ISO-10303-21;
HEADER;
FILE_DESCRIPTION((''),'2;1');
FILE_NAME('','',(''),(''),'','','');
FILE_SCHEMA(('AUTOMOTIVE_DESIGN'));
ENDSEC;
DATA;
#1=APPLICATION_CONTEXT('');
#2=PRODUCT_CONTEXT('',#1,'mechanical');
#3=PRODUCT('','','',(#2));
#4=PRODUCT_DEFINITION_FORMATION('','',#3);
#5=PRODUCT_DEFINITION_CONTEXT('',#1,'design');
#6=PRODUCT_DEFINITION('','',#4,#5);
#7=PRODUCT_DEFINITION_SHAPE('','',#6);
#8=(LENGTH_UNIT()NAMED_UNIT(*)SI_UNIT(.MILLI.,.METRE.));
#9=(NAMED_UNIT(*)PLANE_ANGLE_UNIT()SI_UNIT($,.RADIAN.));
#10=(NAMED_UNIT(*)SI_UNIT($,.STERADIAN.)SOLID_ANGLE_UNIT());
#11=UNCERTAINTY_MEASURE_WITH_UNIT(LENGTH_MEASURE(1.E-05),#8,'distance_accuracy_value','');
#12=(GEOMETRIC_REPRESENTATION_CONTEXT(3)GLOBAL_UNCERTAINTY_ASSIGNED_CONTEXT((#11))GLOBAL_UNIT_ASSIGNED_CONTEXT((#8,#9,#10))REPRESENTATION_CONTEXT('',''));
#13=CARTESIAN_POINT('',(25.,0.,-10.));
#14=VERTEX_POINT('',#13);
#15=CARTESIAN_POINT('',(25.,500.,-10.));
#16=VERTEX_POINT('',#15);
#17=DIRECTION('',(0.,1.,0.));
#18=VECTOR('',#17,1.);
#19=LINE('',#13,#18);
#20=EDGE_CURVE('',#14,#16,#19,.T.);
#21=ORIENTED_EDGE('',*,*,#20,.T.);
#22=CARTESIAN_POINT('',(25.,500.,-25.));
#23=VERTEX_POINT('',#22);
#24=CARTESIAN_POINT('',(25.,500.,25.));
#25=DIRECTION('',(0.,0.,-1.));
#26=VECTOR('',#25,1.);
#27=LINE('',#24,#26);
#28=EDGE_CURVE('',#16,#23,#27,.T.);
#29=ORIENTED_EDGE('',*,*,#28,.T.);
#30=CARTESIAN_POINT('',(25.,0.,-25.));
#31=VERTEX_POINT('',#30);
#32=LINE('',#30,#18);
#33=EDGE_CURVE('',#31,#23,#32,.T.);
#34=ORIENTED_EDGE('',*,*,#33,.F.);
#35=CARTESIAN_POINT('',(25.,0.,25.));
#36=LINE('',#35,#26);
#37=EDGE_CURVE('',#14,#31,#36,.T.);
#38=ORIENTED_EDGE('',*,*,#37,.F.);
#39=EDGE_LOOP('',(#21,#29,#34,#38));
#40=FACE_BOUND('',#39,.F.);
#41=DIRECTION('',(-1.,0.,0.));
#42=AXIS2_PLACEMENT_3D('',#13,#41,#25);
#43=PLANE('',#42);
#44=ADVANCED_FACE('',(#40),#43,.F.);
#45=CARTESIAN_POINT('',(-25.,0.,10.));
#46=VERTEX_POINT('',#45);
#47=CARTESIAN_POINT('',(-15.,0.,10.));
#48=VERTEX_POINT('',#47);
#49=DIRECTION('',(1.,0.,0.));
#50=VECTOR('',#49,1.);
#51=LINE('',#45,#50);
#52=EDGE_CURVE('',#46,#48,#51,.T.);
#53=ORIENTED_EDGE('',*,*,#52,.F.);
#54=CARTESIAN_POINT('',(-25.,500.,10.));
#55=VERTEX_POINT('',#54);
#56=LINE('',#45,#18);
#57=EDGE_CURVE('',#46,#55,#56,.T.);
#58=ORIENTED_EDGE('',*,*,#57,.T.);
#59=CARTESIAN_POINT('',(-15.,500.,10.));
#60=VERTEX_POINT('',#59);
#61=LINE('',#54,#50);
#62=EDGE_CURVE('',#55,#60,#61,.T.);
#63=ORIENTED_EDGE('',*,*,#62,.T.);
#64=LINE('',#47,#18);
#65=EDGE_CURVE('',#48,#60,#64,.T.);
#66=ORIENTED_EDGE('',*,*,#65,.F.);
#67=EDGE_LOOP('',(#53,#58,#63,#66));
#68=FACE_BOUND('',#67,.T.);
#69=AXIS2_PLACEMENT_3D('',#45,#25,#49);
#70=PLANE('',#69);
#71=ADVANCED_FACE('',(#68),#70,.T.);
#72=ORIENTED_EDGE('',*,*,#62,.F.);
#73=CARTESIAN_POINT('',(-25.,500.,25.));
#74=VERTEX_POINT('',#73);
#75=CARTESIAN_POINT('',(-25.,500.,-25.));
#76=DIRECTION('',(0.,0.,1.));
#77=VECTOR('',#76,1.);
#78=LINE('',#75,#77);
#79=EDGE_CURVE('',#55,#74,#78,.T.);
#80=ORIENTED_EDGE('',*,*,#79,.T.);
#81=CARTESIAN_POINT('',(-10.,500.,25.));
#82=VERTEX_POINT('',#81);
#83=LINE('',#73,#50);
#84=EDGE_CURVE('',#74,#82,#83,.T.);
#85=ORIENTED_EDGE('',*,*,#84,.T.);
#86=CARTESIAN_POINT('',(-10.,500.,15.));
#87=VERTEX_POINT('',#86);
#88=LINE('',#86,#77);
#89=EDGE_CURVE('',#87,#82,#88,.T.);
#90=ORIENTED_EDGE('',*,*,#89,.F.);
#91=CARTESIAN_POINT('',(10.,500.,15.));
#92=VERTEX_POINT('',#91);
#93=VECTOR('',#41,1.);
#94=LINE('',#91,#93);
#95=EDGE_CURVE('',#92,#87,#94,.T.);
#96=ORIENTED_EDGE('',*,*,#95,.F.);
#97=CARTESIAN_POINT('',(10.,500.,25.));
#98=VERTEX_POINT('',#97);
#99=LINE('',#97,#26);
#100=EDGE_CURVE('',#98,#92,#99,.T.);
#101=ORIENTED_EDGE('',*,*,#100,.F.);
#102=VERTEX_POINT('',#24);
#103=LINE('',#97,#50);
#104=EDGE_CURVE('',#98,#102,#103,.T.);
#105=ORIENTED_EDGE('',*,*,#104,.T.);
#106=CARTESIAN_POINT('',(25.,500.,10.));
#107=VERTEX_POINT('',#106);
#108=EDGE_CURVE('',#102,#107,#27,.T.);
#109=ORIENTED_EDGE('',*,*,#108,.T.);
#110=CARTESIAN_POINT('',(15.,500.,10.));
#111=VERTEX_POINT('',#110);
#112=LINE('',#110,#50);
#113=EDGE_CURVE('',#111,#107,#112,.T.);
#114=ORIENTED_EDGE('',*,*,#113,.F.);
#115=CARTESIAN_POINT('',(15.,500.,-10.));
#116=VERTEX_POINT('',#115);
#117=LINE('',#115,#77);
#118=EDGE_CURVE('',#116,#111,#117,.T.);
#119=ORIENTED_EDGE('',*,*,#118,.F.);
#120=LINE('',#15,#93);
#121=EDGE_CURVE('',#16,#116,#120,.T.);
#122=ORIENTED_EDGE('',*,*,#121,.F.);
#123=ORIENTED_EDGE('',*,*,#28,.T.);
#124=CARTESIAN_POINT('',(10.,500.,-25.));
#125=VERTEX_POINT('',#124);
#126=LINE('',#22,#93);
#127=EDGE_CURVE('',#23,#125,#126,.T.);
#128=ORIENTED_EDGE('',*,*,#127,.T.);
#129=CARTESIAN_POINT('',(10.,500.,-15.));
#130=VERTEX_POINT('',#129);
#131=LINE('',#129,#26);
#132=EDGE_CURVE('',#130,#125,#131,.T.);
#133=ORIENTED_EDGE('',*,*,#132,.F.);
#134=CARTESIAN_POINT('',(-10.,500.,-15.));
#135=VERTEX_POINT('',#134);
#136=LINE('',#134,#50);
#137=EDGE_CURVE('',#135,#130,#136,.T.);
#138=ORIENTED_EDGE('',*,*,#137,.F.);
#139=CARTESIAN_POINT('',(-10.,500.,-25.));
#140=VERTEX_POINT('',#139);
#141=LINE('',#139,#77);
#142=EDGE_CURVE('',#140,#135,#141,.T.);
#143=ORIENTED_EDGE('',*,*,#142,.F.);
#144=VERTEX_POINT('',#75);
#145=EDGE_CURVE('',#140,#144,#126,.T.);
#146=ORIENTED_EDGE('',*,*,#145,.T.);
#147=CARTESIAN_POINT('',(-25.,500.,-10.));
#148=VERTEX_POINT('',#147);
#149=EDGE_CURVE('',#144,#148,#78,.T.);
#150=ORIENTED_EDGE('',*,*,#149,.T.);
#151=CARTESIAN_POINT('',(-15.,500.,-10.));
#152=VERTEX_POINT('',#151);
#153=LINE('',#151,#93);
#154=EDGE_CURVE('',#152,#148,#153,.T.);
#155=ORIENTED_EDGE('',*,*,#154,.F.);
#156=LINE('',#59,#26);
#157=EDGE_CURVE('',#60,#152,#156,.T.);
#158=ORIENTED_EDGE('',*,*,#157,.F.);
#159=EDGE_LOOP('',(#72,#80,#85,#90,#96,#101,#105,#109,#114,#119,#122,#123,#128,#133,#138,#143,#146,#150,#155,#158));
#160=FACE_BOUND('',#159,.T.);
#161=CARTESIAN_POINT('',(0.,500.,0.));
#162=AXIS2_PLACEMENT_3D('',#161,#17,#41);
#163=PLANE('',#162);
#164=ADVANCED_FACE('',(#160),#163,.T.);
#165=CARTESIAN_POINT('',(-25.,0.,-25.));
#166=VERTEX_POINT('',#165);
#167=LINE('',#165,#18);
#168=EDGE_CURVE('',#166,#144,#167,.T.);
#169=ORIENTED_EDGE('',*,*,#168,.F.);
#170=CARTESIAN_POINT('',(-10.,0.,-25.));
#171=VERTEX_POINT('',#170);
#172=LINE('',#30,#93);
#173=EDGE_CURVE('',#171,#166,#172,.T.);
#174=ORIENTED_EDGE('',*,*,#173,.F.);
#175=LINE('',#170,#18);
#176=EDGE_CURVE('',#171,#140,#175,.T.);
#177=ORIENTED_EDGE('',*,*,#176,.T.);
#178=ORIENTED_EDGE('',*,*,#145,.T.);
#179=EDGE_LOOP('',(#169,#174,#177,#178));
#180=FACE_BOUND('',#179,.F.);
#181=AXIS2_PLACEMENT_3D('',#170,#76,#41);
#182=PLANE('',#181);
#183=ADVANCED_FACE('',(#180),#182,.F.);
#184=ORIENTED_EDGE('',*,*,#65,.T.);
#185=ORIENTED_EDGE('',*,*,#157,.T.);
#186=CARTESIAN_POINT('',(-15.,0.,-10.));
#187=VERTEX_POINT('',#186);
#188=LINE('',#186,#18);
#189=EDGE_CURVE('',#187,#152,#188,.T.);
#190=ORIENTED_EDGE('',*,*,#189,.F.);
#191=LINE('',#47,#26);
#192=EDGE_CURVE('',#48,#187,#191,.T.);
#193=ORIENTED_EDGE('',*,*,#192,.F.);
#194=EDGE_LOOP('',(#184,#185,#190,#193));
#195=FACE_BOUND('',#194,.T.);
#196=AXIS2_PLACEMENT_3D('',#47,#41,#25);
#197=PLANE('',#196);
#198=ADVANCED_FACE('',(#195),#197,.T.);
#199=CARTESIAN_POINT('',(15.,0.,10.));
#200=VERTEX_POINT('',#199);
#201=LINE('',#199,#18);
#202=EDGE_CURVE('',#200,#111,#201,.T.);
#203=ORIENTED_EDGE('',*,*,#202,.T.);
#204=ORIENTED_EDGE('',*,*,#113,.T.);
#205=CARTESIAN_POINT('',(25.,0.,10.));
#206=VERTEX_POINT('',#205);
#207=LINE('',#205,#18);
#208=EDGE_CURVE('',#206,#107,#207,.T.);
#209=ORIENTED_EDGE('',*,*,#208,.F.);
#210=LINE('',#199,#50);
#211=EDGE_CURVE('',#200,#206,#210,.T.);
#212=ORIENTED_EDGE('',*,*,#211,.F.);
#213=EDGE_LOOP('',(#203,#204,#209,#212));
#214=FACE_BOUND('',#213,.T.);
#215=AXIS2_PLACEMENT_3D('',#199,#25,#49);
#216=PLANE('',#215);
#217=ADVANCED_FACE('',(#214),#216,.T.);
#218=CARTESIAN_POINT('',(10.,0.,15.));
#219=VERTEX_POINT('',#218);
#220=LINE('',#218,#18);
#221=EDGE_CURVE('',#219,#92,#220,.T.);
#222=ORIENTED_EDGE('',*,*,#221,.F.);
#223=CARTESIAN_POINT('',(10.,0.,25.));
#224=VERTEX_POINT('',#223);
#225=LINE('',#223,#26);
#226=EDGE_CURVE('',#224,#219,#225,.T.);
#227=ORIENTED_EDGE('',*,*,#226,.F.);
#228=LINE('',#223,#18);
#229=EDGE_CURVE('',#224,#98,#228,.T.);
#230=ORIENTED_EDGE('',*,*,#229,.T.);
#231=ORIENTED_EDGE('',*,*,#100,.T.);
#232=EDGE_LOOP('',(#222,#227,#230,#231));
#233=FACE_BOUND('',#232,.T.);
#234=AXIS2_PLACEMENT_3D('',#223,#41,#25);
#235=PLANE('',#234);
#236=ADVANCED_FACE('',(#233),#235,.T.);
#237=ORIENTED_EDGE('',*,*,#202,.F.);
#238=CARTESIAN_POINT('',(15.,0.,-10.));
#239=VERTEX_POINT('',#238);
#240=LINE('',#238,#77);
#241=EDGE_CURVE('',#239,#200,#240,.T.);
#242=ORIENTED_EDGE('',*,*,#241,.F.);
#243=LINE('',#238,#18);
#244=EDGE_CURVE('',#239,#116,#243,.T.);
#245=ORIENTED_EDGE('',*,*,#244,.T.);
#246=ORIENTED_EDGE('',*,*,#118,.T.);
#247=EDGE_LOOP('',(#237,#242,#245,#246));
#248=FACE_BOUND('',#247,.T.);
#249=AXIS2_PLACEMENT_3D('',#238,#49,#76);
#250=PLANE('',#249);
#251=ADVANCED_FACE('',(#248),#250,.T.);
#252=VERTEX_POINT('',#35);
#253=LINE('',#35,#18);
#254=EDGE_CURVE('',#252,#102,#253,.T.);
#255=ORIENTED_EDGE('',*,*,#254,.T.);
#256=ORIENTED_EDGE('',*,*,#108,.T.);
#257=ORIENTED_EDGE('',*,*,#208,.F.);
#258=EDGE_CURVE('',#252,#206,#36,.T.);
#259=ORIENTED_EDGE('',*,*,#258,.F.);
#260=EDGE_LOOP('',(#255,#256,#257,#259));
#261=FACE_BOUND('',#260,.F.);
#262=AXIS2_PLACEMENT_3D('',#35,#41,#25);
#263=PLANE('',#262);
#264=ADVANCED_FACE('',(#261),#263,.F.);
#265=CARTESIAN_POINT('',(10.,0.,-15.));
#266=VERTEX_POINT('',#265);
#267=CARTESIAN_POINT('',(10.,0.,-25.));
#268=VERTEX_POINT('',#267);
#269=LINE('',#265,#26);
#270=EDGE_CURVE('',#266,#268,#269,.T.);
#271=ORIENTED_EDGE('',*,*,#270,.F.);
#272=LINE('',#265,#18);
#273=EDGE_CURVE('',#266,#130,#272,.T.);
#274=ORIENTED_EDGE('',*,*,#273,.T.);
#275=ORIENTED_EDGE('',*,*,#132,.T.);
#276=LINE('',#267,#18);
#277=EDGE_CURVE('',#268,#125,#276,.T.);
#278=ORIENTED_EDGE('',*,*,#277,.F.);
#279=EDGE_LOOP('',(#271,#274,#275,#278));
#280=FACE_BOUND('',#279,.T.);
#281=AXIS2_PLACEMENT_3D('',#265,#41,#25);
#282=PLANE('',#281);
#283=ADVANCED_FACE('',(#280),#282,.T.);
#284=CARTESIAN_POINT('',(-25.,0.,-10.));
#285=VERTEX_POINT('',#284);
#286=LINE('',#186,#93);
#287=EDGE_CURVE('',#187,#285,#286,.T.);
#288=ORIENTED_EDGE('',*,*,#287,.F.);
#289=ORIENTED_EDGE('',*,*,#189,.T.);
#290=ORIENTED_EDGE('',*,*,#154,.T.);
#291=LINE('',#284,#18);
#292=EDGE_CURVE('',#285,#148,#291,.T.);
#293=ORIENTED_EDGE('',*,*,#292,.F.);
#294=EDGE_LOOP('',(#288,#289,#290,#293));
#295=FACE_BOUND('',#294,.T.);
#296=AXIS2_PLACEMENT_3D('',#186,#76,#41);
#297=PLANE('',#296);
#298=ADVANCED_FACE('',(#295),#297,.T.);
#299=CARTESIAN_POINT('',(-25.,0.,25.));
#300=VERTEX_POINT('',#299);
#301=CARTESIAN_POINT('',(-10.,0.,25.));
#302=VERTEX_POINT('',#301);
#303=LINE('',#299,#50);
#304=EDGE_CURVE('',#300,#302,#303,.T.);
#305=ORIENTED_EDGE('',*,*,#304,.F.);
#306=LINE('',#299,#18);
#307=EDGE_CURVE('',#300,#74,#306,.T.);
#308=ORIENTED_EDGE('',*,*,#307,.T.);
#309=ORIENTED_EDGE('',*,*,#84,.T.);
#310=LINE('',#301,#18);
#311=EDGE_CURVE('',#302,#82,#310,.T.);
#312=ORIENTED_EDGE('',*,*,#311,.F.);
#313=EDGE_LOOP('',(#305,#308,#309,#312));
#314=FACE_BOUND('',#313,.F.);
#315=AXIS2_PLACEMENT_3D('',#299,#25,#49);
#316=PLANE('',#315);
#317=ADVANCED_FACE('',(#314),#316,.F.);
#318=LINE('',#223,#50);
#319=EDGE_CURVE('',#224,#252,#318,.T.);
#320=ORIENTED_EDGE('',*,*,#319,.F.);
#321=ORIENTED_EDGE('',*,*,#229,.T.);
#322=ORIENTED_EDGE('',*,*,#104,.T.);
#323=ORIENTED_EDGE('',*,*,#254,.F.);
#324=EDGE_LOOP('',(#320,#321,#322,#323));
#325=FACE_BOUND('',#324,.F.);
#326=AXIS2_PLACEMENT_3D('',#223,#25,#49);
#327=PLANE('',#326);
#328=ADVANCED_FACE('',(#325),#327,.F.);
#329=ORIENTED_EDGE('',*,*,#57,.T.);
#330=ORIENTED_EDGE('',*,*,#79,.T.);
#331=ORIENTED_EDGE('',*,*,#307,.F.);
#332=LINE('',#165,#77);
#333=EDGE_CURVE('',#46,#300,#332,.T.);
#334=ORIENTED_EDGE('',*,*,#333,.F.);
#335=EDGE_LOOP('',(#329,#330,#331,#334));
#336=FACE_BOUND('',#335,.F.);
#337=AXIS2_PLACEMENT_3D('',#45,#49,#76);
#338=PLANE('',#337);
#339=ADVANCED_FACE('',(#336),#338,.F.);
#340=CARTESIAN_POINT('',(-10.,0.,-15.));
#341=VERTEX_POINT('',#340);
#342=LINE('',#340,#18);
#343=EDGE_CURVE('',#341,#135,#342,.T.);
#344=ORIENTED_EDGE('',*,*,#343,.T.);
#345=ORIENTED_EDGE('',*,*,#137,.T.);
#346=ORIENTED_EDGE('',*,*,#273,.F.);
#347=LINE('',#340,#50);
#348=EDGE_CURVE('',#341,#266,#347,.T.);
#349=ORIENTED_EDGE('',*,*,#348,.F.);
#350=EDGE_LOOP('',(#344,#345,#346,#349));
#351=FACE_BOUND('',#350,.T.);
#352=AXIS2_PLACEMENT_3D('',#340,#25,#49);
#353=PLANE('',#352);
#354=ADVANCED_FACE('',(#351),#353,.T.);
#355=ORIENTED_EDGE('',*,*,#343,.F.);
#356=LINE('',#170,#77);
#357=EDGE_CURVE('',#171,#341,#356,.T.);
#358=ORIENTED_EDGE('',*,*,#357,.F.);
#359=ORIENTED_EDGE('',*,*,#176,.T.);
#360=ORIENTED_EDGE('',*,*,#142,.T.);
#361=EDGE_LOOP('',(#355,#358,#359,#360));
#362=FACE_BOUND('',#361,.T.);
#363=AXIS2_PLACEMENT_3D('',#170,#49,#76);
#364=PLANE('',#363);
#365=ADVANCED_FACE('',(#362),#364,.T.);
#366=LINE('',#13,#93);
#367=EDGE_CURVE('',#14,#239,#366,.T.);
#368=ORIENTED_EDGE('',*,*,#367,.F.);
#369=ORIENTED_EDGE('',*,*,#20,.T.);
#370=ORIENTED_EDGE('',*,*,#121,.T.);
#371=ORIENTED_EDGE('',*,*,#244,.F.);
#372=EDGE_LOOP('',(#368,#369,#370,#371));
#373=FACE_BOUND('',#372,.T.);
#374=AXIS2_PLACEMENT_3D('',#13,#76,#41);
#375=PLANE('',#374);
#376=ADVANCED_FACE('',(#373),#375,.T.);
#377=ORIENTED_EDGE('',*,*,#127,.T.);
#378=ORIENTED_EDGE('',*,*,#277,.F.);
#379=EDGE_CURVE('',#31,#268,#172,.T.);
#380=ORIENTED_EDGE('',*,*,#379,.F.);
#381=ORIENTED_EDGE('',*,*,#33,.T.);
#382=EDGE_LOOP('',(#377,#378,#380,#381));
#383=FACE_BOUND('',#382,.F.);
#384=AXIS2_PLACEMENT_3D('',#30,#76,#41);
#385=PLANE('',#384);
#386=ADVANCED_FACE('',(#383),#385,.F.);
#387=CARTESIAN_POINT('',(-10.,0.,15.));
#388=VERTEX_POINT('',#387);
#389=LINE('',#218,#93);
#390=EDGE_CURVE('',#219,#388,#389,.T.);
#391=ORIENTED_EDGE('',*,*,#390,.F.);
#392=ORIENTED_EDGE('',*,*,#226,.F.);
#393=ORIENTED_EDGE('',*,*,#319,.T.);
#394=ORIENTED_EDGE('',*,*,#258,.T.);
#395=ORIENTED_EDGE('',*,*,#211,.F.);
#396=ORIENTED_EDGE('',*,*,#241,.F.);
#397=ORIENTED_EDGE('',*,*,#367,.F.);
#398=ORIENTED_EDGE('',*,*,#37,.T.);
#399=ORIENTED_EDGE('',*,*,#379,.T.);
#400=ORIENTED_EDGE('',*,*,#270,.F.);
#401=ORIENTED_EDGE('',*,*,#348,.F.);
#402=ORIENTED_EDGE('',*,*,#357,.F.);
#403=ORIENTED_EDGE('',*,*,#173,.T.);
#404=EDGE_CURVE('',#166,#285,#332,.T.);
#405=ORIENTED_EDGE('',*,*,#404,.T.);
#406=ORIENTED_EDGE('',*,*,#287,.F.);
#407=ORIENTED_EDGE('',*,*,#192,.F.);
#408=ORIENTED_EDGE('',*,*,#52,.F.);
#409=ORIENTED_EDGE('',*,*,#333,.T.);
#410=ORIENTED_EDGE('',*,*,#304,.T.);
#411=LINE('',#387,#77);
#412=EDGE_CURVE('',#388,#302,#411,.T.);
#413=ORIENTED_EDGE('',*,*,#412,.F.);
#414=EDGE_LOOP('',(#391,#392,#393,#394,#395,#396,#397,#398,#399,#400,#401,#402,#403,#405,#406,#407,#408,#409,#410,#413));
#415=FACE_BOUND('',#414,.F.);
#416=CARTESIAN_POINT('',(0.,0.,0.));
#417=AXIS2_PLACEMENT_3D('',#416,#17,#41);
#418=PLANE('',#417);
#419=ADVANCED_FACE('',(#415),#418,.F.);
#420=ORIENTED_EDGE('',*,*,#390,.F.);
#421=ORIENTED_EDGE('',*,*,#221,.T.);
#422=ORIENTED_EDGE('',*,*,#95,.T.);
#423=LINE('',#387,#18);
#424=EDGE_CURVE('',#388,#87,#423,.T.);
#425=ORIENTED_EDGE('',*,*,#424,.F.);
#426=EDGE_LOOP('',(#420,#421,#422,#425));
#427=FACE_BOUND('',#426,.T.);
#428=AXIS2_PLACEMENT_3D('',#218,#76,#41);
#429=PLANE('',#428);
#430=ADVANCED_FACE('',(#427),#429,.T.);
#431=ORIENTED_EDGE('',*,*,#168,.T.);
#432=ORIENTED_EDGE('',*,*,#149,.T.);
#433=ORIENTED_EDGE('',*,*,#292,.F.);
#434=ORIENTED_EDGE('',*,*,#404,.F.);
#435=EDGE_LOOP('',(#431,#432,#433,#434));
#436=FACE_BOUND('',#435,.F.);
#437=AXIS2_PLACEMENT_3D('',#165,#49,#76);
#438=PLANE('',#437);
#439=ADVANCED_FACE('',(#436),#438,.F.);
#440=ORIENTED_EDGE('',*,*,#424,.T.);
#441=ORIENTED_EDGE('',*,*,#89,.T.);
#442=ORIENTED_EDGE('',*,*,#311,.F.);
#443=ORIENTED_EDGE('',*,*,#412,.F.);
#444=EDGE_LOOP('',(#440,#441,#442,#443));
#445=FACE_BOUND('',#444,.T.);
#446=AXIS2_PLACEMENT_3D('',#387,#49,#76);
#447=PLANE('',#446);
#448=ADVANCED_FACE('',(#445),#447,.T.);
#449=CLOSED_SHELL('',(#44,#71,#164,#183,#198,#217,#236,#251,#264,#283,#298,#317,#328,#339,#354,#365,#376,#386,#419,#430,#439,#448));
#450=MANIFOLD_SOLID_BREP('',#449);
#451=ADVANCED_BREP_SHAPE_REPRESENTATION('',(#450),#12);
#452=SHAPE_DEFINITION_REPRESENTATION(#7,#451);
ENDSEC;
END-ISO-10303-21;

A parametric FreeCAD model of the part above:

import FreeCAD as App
import Part
import Sketcher
Q = App.Units.Quantity

doc = App.newDocument("Part")
body = doc.addObject("PartDesign::Body", "Body")

# Sketch on XZ plane
sketch1 = body.newObject("Sketcher::SketchObject", "Sketch")
sketch1.AttachmentSupport = (doc.getObject("XZ_Plane"), [""])
sketch1.MapMode = "FlatFace"
sketch1.addGeometry([
    Part.LineSegment(App.Vector(25, -10, 0), App.Vector(25, -25, 0)),  # 0
    Part.LineSegment(App.Vector(25, -25, 0), App.Vector(10, -25, 0)),  # 1
    Part.LineSegment(App.Vector(10, -25, 0), App.Vector(10, -15, 0)),  # 2
    Part.LineSegment(App.Vector(10, -15, 0), App.Vector(-10, -15, 0)),  # 3
    Part.LineSegment(App.Vector(-10, -15, 0), App.Vector(-10, -25, 0)),  # 4
    Part.LineSegment(App.Vector(-10, -25, 0), App.Vector(-25, -25, 0)),  # 5
    Part.LineSegment(App.Vector(-25, -25, 0), App.Vector(-25, -10, 0)),  # 6
    Part.LineSegment(App.Vector(-25, -10, 0), App.Vector(-15, -10, 0)),  # 7
    Part.LineSegment(App.Vector(-15, -10, 0), App.Vector(-15, 10, 0)),  # 8
    Part.LineSegment(App.Vector(-15, 10, 0), App.Vector(-25, 10, 0)),  # 9
    Part.LineSegment(App.Vector(-25, 10, 0), App.Vector(-25, 25, 0)),  # 10
    Part.LineSegment(App.Vector(-25, 25, 0), App.Vector(-10, 25, 0)),  # 11
    Part.LineSegment(App.Vector(-10, 25, 0), App.Vector(-10, 15, 0)),  # 12
    Part.LineSegment(App.Vector(-10, 15, 0), App.Vector(10, 15, 0)),  # 13
    Part.LineSegment(App.Vector(10, 15, 0), App.Vector(10, 25, 0)),  # 14
    Part.LineSegment(App.Vector(10, 25, 0), App.Vector(25, 25, 0)),  # 15
    Part.LineSegment(App.Vector(25, 25, 0), App.Vector(25, 10, 0)),  # 16
    Part.LineSegment(App.Vector(25, 10, 0), App.Vector(15, 10, 0)),  # 17
    Part.LineSegment(App.Vector(15, 10, 0), App.Vector(15, -10, 0)),  # 18
    Part.LineSegment(App.Vector(15, -10, 0), App.Vector(25, -10, 0)),  # 19
], False)
sketch1.addConstraint([
    Sketcher.Constraint("Coincident", 0, 2, 1, 1),
    Sketcher.Constraint("Coincident", 1, 2, 2, 1),
    Sketcher.Constraint("Coincident", 2, 2, 3, 1),
    Sketcher.Constraint("Coincident", 3, 2, 4, 1),
    Sketcher.Constraint("Coincident", 4, 2, 5, 1),
    Sketcher.Constraint("Coincident", 5, 2, 6, 1),
    Sketcher.Constraint("Coincident", 6, 2, 7, 1),
    Sketcher.Constraint("Coincident", 7, 2, 8, 1),
    Sketcher.Constraint("Coincident", 8, 2, 9, 1),
    Sketcher.Constraint("Coincident", 9, 2, 10, 1),
    Sketcher.Constraint("Coincident", 10, 2, 11, 1),
    Sketcher.Constraint("Coincident", 11, 2, 12, 1),
    Sketcher.Constraint("Coincident", 12, 2, 13, 1),
    Sketcher.Constraint("Coincident", 13, 2, 14, 1),
    Sketcher.Constraint("Coincident", 14, 2, 15, 1),
    Sketcher.Constraint("Coincident", 15, 2, 16, 1),
    Sketcher.Constraint("Coincident", 16, 2, 17, 1),
    Sketcher.Constraint("Coincident", 17, 2, 18, 1),
    Sketcher.Constraint("Coincident", 18, 2, 19, 1),
    Sketcher.Constraint("Coincident", 19, 2, 0, 1),
    Sketcher.Constraint("Vertical", 0),
    Sketcher.Constraint("Horizontal", 1),
    Sketcher.Constraint("Vertical", 2),
    Sketcher.Constraint("Horizontal", 3),
    Sketcher.Constraint("Vertical", 4),
    Sketcher.Constraint("Horizontal", 5),
    Sketcher.Constraint("Vertical", 6),
    Sketcher.Constraint("Horizontal", 7),
    Sketcher.Constraint("Vertical", 8),
    Sketcher.Constraint("Horizontal", 9),
    Sketcher.Constraint("Vertical", 10),
    Sketcher.Constraint("Horizontal", 11),
    Sketcher.Constraint("Vertical", 12),
    Sketcher.Constraint("Horizontal", 13),
    Sketcher.Constraint("Vertical", 14),
    Sketcher.Constraint("Horizontal", 15),
    Sketcher.Constraint("Vertical", 16),
    Sketcher.Constraint("Horizontal", 17),
    Sketcher.Constraint("Vertical", 18),
    Sketcher.Constraint("Horizontal", 19),
    Sketcher.Constraint("Symmetric", 0, 2, 10, 2, -1, 1),
    Sketcher.Constraint("Symmetric", 2, 2, 12, 2, -1, 1),
    Sketcher.Constraint("Symmetric", 4, 2, 14, 2, -1, 1),
    Sketcher.Constraint("Symmetric", 6, 2, 16, 2, -1, 1),
    Sketcher.Constraint("Symmetric", 8, 2, 18, 2, -1, 1),
    Sketcher.Constraint("Symmetric", 1, 2, 4, 2, -2),
    Sketcher.Constraint("Symmetric", 9, 2, 16, 2, -2),
    Sketcher.Constraint("Equal", 15, 0),
    Sketcher.Constraint("Equal", 19, 2),
    Sketcher.Constraint("Equal", 13, 8),
    Sketcher.Constraint("DistanceX", 7, 1, 7, 2, Q("10 mm")),
    Sketcher.Constraint("DistanceX", -1, 1, 1, 2, Q("10 mm")),
    Sketcher.Constraint("DistanceX", 5, 2, 0, 2, Q("50 mm")),
])
pad1 = body.newObject("PartDesign::Pad", "Pad")
pad1.Profile = sketch1
pad1.Length = 500
pad1.Reversed = True

doc.recompute()
